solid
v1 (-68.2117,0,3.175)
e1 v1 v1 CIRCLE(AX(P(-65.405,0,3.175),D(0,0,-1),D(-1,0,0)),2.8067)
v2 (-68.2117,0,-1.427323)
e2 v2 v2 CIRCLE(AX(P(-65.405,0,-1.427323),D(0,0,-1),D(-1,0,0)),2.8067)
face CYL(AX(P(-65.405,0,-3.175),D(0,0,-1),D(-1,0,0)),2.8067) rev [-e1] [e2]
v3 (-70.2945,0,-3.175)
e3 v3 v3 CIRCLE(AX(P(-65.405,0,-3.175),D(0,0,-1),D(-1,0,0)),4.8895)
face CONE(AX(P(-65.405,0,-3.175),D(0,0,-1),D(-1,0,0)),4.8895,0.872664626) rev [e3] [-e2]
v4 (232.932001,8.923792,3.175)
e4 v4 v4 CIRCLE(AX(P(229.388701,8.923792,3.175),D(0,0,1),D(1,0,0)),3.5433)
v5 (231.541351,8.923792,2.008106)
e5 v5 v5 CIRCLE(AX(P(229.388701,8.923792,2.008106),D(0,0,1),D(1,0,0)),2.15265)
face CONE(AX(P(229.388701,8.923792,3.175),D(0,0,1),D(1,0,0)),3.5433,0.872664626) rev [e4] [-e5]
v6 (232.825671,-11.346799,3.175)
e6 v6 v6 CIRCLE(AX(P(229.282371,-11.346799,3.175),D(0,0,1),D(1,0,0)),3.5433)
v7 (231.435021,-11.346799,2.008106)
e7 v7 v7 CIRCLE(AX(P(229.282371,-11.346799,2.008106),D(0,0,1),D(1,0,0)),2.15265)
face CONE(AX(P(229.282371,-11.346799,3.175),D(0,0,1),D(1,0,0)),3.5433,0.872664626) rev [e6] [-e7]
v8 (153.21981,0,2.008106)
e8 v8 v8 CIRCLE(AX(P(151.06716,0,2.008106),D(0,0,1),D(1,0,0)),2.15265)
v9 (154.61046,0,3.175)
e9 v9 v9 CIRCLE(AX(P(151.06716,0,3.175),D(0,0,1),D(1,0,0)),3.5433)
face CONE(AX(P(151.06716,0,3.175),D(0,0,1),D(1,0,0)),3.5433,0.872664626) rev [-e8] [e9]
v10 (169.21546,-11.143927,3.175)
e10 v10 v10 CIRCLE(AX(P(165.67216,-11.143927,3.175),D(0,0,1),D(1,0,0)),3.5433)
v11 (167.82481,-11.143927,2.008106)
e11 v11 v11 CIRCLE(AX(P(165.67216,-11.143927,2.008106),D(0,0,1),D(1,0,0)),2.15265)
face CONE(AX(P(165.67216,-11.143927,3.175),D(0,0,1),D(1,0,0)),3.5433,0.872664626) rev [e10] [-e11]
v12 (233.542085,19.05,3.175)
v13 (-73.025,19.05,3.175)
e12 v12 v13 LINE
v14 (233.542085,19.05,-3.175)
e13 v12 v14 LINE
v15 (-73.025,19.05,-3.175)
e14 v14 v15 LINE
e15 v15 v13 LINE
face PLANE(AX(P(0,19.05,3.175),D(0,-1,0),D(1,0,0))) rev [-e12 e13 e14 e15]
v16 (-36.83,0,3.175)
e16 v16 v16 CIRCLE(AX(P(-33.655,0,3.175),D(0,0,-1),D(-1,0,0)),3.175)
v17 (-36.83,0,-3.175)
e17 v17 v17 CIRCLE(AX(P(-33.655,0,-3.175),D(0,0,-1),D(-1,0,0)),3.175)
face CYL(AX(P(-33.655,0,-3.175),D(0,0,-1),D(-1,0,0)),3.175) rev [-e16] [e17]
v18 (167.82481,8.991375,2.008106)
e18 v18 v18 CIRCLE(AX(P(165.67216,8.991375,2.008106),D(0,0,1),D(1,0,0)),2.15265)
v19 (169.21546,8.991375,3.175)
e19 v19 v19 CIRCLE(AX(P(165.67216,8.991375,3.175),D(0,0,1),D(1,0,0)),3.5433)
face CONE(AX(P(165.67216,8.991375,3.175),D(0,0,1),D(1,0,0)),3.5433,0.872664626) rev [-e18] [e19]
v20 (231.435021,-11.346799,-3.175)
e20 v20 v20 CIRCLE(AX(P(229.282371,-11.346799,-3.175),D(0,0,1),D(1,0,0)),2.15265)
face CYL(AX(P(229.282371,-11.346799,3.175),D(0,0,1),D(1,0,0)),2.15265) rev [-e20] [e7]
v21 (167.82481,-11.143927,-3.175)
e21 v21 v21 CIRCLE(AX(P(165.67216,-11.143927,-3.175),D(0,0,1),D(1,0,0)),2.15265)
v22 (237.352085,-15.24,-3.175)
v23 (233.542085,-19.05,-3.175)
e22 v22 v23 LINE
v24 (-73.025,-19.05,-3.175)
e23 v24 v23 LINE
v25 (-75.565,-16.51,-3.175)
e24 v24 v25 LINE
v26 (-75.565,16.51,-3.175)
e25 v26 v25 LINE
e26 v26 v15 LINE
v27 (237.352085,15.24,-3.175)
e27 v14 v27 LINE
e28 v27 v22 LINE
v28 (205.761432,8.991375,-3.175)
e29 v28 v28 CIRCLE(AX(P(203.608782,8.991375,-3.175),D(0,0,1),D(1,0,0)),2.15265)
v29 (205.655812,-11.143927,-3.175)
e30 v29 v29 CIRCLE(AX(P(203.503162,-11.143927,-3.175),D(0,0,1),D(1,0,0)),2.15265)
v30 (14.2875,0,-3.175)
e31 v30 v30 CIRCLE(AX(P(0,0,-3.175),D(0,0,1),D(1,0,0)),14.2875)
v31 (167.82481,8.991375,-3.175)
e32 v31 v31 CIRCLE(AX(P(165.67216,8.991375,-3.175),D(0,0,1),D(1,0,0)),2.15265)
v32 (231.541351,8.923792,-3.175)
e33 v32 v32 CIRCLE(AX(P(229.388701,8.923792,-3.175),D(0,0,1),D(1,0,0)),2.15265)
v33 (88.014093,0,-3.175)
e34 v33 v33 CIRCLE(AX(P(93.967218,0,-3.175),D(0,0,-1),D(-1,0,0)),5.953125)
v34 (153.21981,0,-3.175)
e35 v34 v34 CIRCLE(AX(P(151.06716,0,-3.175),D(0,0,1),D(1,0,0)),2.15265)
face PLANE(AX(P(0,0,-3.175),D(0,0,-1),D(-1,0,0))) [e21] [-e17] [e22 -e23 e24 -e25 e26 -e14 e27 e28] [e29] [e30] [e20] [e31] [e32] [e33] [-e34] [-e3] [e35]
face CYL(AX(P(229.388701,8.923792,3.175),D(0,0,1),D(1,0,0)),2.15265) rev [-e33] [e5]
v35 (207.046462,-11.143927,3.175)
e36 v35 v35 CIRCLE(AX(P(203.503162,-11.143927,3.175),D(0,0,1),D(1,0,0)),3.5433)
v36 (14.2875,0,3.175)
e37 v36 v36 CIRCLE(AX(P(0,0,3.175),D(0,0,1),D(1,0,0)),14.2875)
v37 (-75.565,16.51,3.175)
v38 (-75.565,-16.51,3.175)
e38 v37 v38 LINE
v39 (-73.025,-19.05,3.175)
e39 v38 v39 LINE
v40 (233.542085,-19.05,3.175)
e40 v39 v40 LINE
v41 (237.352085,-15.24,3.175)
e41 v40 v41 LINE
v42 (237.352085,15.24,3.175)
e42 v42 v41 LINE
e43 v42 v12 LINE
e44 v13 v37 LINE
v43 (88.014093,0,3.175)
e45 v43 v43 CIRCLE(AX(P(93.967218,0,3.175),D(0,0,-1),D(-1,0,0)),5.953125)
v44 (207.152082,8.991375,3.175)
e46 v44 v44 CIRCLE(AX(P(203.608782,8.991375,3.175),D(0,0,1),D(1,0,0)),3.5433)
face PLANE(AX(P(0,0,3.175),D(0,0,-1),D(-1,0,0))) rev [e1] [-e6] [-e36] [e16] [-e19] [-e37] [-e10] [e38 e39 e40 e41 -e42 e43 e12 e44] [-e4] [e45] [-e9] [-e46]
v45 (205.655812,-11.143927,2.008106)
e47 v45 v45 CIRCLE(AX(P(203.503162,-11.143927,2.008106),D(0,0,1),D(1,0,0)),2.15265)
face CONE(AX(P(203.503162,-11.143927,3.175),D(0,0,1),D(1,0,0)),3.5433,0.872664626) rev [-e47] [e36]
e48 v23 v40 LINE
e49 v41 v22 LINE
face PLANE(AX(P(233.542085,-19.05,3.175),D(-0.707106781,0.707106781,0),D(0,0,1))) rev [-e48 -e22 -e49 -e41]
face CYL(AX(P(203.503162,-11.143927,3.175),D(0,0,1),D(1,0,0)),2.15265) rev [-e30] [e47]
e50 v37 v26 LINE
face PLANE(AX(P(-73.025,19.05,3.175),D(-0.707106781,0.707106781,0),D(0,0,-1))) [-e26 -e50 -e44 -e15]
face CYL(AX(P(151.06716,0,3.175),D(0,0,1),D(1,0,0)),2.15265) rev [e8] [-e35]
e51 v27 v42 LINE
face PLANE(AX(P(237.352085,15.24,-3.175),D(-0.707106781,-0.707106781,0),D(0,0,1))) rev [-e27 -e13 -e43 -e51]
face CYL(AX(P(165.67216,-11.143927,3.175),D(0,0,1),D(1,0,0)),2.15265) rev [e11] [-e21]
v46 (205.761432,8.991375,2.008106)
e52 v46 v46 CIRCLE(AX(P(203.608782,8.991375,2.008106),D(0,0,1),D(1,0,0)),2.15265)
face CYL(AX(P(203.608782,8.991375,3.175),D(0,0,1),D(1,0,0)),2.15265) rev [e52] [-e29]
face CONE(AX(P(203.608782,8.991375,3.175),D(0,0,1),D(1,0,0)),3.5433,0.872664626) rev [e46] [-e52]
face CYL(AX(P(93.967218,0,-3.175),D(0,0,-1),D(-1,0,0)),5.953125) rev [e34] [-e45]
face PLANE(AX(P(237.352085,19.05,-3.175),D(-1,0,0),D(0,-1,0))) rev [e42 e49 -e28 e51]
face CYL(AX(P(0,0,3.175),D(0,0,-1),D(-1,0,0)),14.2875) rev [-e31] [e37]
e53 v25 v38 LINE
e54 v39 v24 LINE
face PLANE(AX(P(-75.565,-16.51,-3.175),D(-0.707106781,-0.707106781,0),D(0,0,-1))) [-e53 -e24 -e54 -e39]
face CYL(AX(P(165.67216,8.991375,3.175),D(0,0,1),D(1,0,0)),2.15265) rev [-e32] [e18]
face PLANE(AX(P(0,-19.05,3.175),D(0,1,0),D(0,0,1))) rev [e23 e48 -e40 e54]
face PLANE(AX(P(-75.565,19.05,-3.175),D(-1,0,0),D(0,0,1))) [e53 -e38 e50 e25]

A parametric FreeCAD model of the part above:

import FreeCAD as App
import Part
import Sketcher
Q = App.Units.Quantity


def edges_at(feature, points):
    """Names of the edges that pass closest to the given points."""
    edges = feature.Shape.Edges
    near = lambda p: min(range(len(edges)), key=lambda i: edges[i].distToShape(Part.Vertex(*p))[0])
    return sorted({f"Edge{near(p) + 1}" for p in points})


def add_polygon(sketch, points):
    """Adds a closed chain of lines whose ends are joined by coincident constraints."""
    first, n = sketch.GeometryCount, len(points)
    for a, b in zip(points, points[1:] + points[:1]):
        sketch.addGeometry(Part.LineSegment(App.Vector(*a, 0), App.Vector(*b, 0)), False)
    for i in range(n):
        sketch.addConstraint(Sketcher.Constraint("Coincident", first + i, 2, first + (i + 1) % n, 1))

doc = App.newDocument("Part")
params = doc.addObject("Spreadsheet::Sheet", "Params")
for row, (alias, value) in enumerate([
    ("sketch1_diameter", "1.125 in"),
    ("sketch1_height", "1.5 in"),
    ("sketch1_width", "11.125 in"),
    ("pad1_length", "0.25 in"),
    ("hole_diameter", "0.1695 in"),
    ("sketch3_height", "1.5 in"),
    ("chamfer_size", "0.15 in"),
    ("hole2_diameter", "0.1695 in"),
    ("hole2_csink_diameter", "0.279 in"),
    ("sketch5_width", "2 in"),
    ("sketch5_height", "1.5 in"),
    ("pad2_length", "0.25 in"),
    ("chamfer2_size", "0.1 in"),
    ("sketch6_diameter", "0.221 in"),
    ("hole3_diameter", "0.221 in"),
    ("hole3_csink_diameter", "0.385 in"),
    ("sketch7_diameter", "0.25 in"),
    ("hole4_diameter", "0.25 in"),
    ("sketch8_diameter", "0.46875 in"),
    ("hole5_diameter", "0.46875 in"),
], start=1):
    params.set(f"A{row}", alias)
    params.set(f"B{row}", "=" + value)
    params.setAlias(f"B{row}", alias)

body = doc.addObject("PartDesign::Body", "Body")

# Sketch on XY plane
sketch1 = body.newObject("Sketcher::SketchObject", "Sketch")
sketch1.AttachmentSupport = (doc.getObject("XY_Plane"), [""])
sketch1.MapMode = "FlatFace"
add_polygon(sketch1, [(-28.575, 19.05), (-28.575, -19.05), (247.281942, -19.05), (254, 19.05)])  # lines 0-3
sketch1.addGeometry(Part.Circle(App.Vector(0, 0, 0), App.Vector(0, 0, 1), 14.2875), False)  # 4
sketch1.addConstraint([
    Sketcher.Constraint("Vertical", 0),
    Sketcher.Constraint("Horizontal", 1),
    Sketcher.Constraint("Horizontal", 3),
    Sketcher.Constraint("Coincident", 4, 3, -1, 1),
    Sketcher.Constraint("Diameter", 4, Q("1.125 in")),
    Sketcher.Constraint("DistanceY", 0, 2, 0, 1, Q("1.5 in")),
    Sketcher.Constraint("DistanceX", -1, 1, 2, 2, Q("10 in")),
    Sketcher.Constraint("Angle", 2, Q("80 deg")),
    Sketcher.Constraint("DistanceX", 3, 2, 3, 1, Q("11.125 in")),
    Sketcher.Constraint("DistanceY", 0, 2, -1, 1, Q("0.75 in")),
])
sketch1.setExpression("Constraints[8]", "Params.sketch1_diameter")
sketch1.setExpression("Constraints[9]", "Params.sketch1_height")
sketch1.setExpression("Constraints[12]", "Params.sketch1_width")
pad1 = body.newObject("PartDesign::Pad", "Pad")
pad1.Profile = sketch1
pad1.setExpression("Length", "Params.pad1_length")
pad1.Midplane = True

# Sketch on XY plane
sketch2 = body.newObject("Sketcher::SketchObject", "Sketch001")
sketch2.AttachmentSupport = (doc.getObject("XY_Plane"), [""])
sketch2.MapMode = "FlatFace"
sketch2.AttachmentOffset = App.Placement(App.Vector(0, 0, 0.125 * 25.4), App.Rotation())
sketch2.addGeometry([
    Part.Circle(App.Vector(229.388701, 8.923792, 0), App.Vector(0, 0, 1), 2.15265),  # 0
    Part.Circle(App.Vector(229.282371, -11.346799, 0), App.Vector(0, 0, 1), 2.15265),  # 1
    Part.Circle(App.Vector(203.503162, -11.143927, 0), App.Vector(0, 0, 1), 2.15265),  # 2
    Part.Circle(App.Vector(203.608782, 8.991375, 0), App.Vector(0, 0, 1), 2.15265),  # 3
    Part.Circle(App.Vector(165.67216, 8.991375, 0), App.Vector(0, 0, 1), 2.15265),  # 4
    Part.Circle(App.Vector(165.67216, -11.143927, 0), App.Vector(0, 0, 1), 2.15265),  # 5
    Part.Circle(App.Vector(151.06716, 0, 0), App.Vector(0, 0, 1), 2.15265),  # 6
], False)
sketch2.addConstraint([
    Sketcher.Constraint("Equal", 0, 1),
    Sketcher.Constraint("Equal", 1, 2),
    Sketcher.Constraint("Equal", 2, 3),
    Sketcher.Constraint("Equal", 3, 4),
    Sketcher.Constraint("Equal", 4, 5),
    Sketcher.Constraint("Equal", 5, 6),
    Sketcher.Constraint("PointOnObject", 6, 3, -1),
    Sketcher.Constraint("Horizontal", 3, 3, 4, 3),
    Sketcher.Constraint("Horizontal", 2, 3, 5, 3),
    Sketcher.Constraint("Vertical", 4, 3, 5, 3),
    Sketcher.Constraint("Diameter", 0, Q("0.1695 in")),
    Sketcher.Constraint("DistanceX", 6, 3, 4, 3, Q("0.575 in")),
    Sketcher.Constraint("DistanceX", -1, 1, 0, 3, 229.388701),
    Sketcher.Constraint("DistanceY", 1, 3, -1, 1, 11.346799),
    Sketcher.Constraint("DistanceY", -1, 1, 0, 3, 8.923792),
    Sketcher.Constraint("DistanceX", -1, 1, 1, 3, 229.282371),
    Sketcher.Constraint("DistanceX", -1, 1, 2, 3, 203.503162),
    Sketcher.Constraint("DistanceX", -1, 1, 4, 3, 165.67216),
    Sketcher.Constraint("DistanceY", 1, 3, 2, 3, 0.202872),
    Sketcher.Constraint("DistanceX", 2, 3, 3, 3, 0.105621),
    Sketcher.Constraint("DistanceY", -1, 1, 3, 3, 8.991375),
])
doc.recompute()
hole = body.newObject("PartDesign::Hole", "Hole")
hole.Profile = sketch2
hole.ThreadType = "None"
hole.setExpression("Diameter", "Params.hole_diameter")
hole.DepthType = "ThroughAll"

# Sketch on XY plane
sketch3 = body.newObject("Sketcher::SketchObject", "Sketch002")
sketch3.AttachmentSupport = (doc.getObject("XY_Plane"), [""])
sketch3.MapMode = "FlatFace"
sketch3.AttachmentOffset = App.Placement(App.Vector(0, 0, 0.125 * 25.4), App.Rotation())
add_polygon(sketch3, [(247.281942, -19.05), (254, 19.05), (237.352085, 19.05), (237.352085, -19.05)])  # lines 0-3
sketch3.addConstraint([
    Sketcher.Constraint("Horizontal", 1),
    Sketcher.Constraint("Vertical", 2),
    Sketcher.Constraint("Horizontal", 3),
    Sketcher.Constraint("DistanceY", 2, 2, 2, 1, Q("1.5 in")),
    Sketcher.Constraint("DistanceX", -1, 1, 0, 2, Q("10 in")),
    Sketcher.Constraint("Angle", 0, Q("80 deg")),
    Sketcher.Constraint("DistanceY", -1, 1, 0, 2, Q("0.75 in")),
    Sketcher.Constraint("DistanceX", 1, 2, 1, 1, 16.647915),
])
sketch3.setExpression("Constraints[7]", "Params.sketch3_height")
pocket1 = body.newObject("PartDesign::Pocket", "Pocket")
pocket1.Profile = sketch3
pocket1.Type = "ThroughAll"
doc.recompute()

chamfer = body.newObject("PartDesign::Chamfer", "Chamfer")
chamfer.Base = (pocket1, edges_at(pocket1, [
    (-28.575, -19.05, 0),
    (-28.575, 19.05, 0),
    (237.352, 19.05, 0),
    (237.352, -19.05, 0),
]))
chamfer.setExpression("Size", "Params.chamfer_size")

# Sketch on XY plane
sketch4 = body.newObject("Sketcher::SketchObject", "Sketch003")
sketch4.AttachmentSupport = (doc.getObject("XY_Plane"), [""])
sketch4.MapMode = "FlatFace"
sketch4.AttachmentOffset = App.Placement(App.Vector(0, 0, 0.125 * 25.4), App.Rotation())
sketch4.addGeometry([
    Part.Circle(App.Vector(203.608782, 8.991375, 0), App.Vector(0, 0, 1), 2.15265),  # 0
    Part.Circle(App.Vector(203.503162, -11.143927, 0), App.Vector(0, 0, 1), 2.15265),  # 1
    Part.Circle(App.Vector(229.282371, -11.346799, 0), App.Vector(0, 0, 1), 2.15265),  # 2
    Part.Circle(App.Vector(229.388701, 8.923792, 0), App.Vector(0, 0, 1), 2.15265),  # 3
    Part.Circle(App.Vector(165.67216, 8.991375, 0), App.Vector(0, 0, 1), 2.15265),  # 4
    Part.Circle(App.Vector(165.67216, -11.143927, 0), App.Vector(0, 0, 1), 2.15265),  # 5
    Part.Circle(App.Vector(151.06716, 0, 0), App.Vector(0, 0, 1), 2.15265),  # 6
], False)
sketch4.addConstraint([
    Sketcher.Constraint("Equal", 0, 1),
    Sketcher.Constraint("Equal", 1, 2),
    Sketcher.Constraint("Equal", 2, 3),
    Sketcher.Constraint("Equal", 3, 4),
    Sketcher.Constraint("Equal", 4, 5),
    Sketcher.Constraint("Equal", 5, 6),
    Sketcher.Constraint("PointOnObject", 6, 3, -1),
    Sketcher.Constraint("Horizontal", 0, 3, 4, 3),
    Sketcher.Constraint("Horizontal", 1, 3, 5, 3),
    Sketcher.Constraint("Vertical", 4, 3, 5, 3),
    Sketcher.Constraint("Diameter", 0, Q("0.1695 in")),
    Sketcher.Constraint("DistanceX", 6, 3, 4, 3, Q("0.575 in")),
    Sketcher.Constraint("DistanceY", 2, 3, -1, 1, 11.346799),
    Sketcher.Constraint("DistanceX", -1, 1, 3, 3, 229.388701),
    Sketcher.Constraint("DistanceX", -1, 1, 1, 3, 203.503162),
    Sketcher.Constraint("DistanceX", -1, 1, 2, 3, 229.282371),
    Sketcher.Constraint("DistanceY", -1, 1, 3, 3, 8.923792),
    Sketcher.Constraint("DistanceX", -1, 1, 4, 3, 165.67216),
    Sketcher.Constraint("DistanceX", 1, 3, 0, 3, 0.105621),
    Sketcher.Constraint("DistanceY", 2, 3, 1, 3, 0.202872),
    Sketcher.Constraint("DistanceY", -1, 1, 0, 3, 8.991375),
])
doc.recompute()
hole2 = body.newObject("PartDesign::Hole", "Hole001")
hole2.Profile = sketch4
hole2.ThreadType = "None"
hole2.setExpression("Diameter", "Params.hole2_diameter")
hole2.DepthType = "ThroughAll"
hole2.HoleCutType = "Countersink"
hole2.setExpression("HoleCutDiameter", "Params.hole2_csink_diameter")
hole2.HoleCutCountersinkAngle = 100

# Sketch on XY plane
sketch5 = body.newObject("Sketcher::SketchObject", "Sketch004")
sketch5.AttachmentSupport = (doc.getObject("XY_Plane"), [""])
sketch5.MapMode = "FlatFace"
sketch5.AttachmentOffset = App.Placement(App.Vector(0, 0, 0.125 * 25.4), App.Rotation())
add_polygon(sketch5, [(-75.565, 19.05), (-75.565, -19.05), (-24.765, -19.05), (-24.765, 19.05)])  # lines 0-3
sketch5.addConstraint([
    Sketcher.Constraint("Vertical", 0),
    Sketcher.Constraint("Horizontal", 1),
    Sketcher.Constraint("Vertical", 2),
    Sketcher.Constraint("Horizontal", 3),
    Sketcher.Constraint("DistanceX", 1, 1, 1, 2, Q("2 in")),
    Sketcher.Constraint("DistanceY", 0, 2, 0, 1, Q("1.5 in")),
    Sketcher.Constraint("DistanceY", 0, 2, -1, 1, Q("0.75 in")),
    Sketcher.Constraint("DistanceX", 0, 2, -1, 1, Q("2.975 in")),
])
sketch5.setExpression("Constraints[8]", "Params.sketch5_width")
sketch5.setExpression("Constraints[9]", "Params.sketch5_height")
pad2 = body.newObject("PartDesign::Pad", "Pad001")
pad2.Profile = sketch5
pad2.setExpression("Length", "Params.pad2_length")
pad2.Reversed = True
doc.recompute()

chamfer2 = body.newObject("PartDesign::Chamfer", "Chamfer001")
chamfer2.Base = (pad2, edges_at(pad2, [(-75.565, -19.05, 0), (-75.565, 19.05, 0)]))
chamfer2.setExpression("Size", "Params.chamfer2_size")

# Sketch on XY plane
sketch6 = body.newObject("Sketcher::SketchObject", "Sketch005")
sketch6.AttachmentSupport = (doc.getObject("XY_Plane"), [""])
sketch6.MapMode = "FlatFace"
sketch6.AttachmentOffset = App.Placement(App.Vector(0, 0, -0.125 * 25.4), App.Rotation())
sketch6.addGeometry(Part.Circle(App.Vector(-65.405, 0, 0), App.Vector(0, 0, 1), 2.8067), False)
sketch6.addConstraint([
    Sketcher.Constraint("PointOnObject", 0, 3, -1),
    Sketcher.Constraint("Diameter", 0, Q("0.221 in")),
    Sketcher.Constraint("DistanceX", 0, 3, -1, 1, Q("2.575 in")),
])
sketch6.setExpression("Constraints[1]", "Params.sketch6_diameter")
doc.recompute()
hole3 = body.newObject("PartDesign::Hole", "Hole002")
hole3.Profile = sketch6
hole3.ThreadType = "None"
hole3.setExpression("Diameter", "Params.hole3_diameter")
hole3.DepthType = "ThroughAll"
hole3.HoleCutType = "Countersink"
hole3.setExpression("HoleCutDiameter", "Params.hole3_csink_diameter")
hole3.HoleCutCountersinkAngle = 100
hole3.Reversed = True

# Sketch on XY plane
sketch7 = body.newObject("Sketcher::SketchObject", "Sketch006")
sketch7.AttachmentSupport = (doc.getObject("XY_Plane"), [""])
sketch7.MapMode = "FlatFace"
sketch7.AttachmentOffset = App.Placement(App.Vector(0, 0, -0.125 * 25.4), App.Rotation())
sketch7.addGeometry(Part.Circle(App.Vector(-33.655, 0, 0), App.Vector(0, 0, 1), 3.175), False)
sketch7.addConstraint([
    Sketcher.Constraint("PointOnObject", 0, 3, -1),
    Sketcher.Constraint("Diameter", 0, Q("0.25 in")),
    Sketcher.Constraint("DistanceX", 0, 3, -1, 1, Q("1.325 in")),
])
sketch7.setExpression("Constraints[1]", "Params.sketch7_diameter")
doc.recompute()
hole4 = body.newObject("PartDesign::Hole", "Hole003")
hole4.Profile = sketch7
hole4.ThreadType = "None"
hole4.setExpression("Diameter", "Params.hole4_diameter")
hole4.DepthType = "ThroughAll"
hole4.Reversed = True

# Sketch on XY plane
sketch8 = body.newObject("Sketcher::SketchObject", "Sketch007")
sketch8.AttachmentSupport = (doc.getObject("XY_Plane"), [""])
sketch8.MapMode = "FlatFace"
sketch8.AttachmentOffset = App.Placement(App.Vector(0, 0, -0.125 * 25.4), App.Rotation())
sketch8.addGeometry(Part.Circle(App.Vector(93.967218, 0, 0), App.Vector(0, 0, 1), 5.953125), False)
sketch8.addConstraint([
    Sketcher.Constraint("PointOnObject", 0, 3, -1),
    Sketcher.Constraint("Diameter", 0, Q("0.46875 in")),
    Sketcher.Constraint("DistanceX", -1, 1, 0, 3, 93.967218),
])
sketch8.setExpression("Constraints[1]", "Params.sketch8_diameter")
doc.recompute()
hole5 = body.newObject("PartDesign::Hole", "Hole004")
hole5.Profile = sketch8
hole5.ThreadType = "None"
hole5.setExpression("Diameter", "Params.hole5_diameter")
hole5.DepthType = "ThroughAll"
hole5.Reversed = True

doc.recompute()
